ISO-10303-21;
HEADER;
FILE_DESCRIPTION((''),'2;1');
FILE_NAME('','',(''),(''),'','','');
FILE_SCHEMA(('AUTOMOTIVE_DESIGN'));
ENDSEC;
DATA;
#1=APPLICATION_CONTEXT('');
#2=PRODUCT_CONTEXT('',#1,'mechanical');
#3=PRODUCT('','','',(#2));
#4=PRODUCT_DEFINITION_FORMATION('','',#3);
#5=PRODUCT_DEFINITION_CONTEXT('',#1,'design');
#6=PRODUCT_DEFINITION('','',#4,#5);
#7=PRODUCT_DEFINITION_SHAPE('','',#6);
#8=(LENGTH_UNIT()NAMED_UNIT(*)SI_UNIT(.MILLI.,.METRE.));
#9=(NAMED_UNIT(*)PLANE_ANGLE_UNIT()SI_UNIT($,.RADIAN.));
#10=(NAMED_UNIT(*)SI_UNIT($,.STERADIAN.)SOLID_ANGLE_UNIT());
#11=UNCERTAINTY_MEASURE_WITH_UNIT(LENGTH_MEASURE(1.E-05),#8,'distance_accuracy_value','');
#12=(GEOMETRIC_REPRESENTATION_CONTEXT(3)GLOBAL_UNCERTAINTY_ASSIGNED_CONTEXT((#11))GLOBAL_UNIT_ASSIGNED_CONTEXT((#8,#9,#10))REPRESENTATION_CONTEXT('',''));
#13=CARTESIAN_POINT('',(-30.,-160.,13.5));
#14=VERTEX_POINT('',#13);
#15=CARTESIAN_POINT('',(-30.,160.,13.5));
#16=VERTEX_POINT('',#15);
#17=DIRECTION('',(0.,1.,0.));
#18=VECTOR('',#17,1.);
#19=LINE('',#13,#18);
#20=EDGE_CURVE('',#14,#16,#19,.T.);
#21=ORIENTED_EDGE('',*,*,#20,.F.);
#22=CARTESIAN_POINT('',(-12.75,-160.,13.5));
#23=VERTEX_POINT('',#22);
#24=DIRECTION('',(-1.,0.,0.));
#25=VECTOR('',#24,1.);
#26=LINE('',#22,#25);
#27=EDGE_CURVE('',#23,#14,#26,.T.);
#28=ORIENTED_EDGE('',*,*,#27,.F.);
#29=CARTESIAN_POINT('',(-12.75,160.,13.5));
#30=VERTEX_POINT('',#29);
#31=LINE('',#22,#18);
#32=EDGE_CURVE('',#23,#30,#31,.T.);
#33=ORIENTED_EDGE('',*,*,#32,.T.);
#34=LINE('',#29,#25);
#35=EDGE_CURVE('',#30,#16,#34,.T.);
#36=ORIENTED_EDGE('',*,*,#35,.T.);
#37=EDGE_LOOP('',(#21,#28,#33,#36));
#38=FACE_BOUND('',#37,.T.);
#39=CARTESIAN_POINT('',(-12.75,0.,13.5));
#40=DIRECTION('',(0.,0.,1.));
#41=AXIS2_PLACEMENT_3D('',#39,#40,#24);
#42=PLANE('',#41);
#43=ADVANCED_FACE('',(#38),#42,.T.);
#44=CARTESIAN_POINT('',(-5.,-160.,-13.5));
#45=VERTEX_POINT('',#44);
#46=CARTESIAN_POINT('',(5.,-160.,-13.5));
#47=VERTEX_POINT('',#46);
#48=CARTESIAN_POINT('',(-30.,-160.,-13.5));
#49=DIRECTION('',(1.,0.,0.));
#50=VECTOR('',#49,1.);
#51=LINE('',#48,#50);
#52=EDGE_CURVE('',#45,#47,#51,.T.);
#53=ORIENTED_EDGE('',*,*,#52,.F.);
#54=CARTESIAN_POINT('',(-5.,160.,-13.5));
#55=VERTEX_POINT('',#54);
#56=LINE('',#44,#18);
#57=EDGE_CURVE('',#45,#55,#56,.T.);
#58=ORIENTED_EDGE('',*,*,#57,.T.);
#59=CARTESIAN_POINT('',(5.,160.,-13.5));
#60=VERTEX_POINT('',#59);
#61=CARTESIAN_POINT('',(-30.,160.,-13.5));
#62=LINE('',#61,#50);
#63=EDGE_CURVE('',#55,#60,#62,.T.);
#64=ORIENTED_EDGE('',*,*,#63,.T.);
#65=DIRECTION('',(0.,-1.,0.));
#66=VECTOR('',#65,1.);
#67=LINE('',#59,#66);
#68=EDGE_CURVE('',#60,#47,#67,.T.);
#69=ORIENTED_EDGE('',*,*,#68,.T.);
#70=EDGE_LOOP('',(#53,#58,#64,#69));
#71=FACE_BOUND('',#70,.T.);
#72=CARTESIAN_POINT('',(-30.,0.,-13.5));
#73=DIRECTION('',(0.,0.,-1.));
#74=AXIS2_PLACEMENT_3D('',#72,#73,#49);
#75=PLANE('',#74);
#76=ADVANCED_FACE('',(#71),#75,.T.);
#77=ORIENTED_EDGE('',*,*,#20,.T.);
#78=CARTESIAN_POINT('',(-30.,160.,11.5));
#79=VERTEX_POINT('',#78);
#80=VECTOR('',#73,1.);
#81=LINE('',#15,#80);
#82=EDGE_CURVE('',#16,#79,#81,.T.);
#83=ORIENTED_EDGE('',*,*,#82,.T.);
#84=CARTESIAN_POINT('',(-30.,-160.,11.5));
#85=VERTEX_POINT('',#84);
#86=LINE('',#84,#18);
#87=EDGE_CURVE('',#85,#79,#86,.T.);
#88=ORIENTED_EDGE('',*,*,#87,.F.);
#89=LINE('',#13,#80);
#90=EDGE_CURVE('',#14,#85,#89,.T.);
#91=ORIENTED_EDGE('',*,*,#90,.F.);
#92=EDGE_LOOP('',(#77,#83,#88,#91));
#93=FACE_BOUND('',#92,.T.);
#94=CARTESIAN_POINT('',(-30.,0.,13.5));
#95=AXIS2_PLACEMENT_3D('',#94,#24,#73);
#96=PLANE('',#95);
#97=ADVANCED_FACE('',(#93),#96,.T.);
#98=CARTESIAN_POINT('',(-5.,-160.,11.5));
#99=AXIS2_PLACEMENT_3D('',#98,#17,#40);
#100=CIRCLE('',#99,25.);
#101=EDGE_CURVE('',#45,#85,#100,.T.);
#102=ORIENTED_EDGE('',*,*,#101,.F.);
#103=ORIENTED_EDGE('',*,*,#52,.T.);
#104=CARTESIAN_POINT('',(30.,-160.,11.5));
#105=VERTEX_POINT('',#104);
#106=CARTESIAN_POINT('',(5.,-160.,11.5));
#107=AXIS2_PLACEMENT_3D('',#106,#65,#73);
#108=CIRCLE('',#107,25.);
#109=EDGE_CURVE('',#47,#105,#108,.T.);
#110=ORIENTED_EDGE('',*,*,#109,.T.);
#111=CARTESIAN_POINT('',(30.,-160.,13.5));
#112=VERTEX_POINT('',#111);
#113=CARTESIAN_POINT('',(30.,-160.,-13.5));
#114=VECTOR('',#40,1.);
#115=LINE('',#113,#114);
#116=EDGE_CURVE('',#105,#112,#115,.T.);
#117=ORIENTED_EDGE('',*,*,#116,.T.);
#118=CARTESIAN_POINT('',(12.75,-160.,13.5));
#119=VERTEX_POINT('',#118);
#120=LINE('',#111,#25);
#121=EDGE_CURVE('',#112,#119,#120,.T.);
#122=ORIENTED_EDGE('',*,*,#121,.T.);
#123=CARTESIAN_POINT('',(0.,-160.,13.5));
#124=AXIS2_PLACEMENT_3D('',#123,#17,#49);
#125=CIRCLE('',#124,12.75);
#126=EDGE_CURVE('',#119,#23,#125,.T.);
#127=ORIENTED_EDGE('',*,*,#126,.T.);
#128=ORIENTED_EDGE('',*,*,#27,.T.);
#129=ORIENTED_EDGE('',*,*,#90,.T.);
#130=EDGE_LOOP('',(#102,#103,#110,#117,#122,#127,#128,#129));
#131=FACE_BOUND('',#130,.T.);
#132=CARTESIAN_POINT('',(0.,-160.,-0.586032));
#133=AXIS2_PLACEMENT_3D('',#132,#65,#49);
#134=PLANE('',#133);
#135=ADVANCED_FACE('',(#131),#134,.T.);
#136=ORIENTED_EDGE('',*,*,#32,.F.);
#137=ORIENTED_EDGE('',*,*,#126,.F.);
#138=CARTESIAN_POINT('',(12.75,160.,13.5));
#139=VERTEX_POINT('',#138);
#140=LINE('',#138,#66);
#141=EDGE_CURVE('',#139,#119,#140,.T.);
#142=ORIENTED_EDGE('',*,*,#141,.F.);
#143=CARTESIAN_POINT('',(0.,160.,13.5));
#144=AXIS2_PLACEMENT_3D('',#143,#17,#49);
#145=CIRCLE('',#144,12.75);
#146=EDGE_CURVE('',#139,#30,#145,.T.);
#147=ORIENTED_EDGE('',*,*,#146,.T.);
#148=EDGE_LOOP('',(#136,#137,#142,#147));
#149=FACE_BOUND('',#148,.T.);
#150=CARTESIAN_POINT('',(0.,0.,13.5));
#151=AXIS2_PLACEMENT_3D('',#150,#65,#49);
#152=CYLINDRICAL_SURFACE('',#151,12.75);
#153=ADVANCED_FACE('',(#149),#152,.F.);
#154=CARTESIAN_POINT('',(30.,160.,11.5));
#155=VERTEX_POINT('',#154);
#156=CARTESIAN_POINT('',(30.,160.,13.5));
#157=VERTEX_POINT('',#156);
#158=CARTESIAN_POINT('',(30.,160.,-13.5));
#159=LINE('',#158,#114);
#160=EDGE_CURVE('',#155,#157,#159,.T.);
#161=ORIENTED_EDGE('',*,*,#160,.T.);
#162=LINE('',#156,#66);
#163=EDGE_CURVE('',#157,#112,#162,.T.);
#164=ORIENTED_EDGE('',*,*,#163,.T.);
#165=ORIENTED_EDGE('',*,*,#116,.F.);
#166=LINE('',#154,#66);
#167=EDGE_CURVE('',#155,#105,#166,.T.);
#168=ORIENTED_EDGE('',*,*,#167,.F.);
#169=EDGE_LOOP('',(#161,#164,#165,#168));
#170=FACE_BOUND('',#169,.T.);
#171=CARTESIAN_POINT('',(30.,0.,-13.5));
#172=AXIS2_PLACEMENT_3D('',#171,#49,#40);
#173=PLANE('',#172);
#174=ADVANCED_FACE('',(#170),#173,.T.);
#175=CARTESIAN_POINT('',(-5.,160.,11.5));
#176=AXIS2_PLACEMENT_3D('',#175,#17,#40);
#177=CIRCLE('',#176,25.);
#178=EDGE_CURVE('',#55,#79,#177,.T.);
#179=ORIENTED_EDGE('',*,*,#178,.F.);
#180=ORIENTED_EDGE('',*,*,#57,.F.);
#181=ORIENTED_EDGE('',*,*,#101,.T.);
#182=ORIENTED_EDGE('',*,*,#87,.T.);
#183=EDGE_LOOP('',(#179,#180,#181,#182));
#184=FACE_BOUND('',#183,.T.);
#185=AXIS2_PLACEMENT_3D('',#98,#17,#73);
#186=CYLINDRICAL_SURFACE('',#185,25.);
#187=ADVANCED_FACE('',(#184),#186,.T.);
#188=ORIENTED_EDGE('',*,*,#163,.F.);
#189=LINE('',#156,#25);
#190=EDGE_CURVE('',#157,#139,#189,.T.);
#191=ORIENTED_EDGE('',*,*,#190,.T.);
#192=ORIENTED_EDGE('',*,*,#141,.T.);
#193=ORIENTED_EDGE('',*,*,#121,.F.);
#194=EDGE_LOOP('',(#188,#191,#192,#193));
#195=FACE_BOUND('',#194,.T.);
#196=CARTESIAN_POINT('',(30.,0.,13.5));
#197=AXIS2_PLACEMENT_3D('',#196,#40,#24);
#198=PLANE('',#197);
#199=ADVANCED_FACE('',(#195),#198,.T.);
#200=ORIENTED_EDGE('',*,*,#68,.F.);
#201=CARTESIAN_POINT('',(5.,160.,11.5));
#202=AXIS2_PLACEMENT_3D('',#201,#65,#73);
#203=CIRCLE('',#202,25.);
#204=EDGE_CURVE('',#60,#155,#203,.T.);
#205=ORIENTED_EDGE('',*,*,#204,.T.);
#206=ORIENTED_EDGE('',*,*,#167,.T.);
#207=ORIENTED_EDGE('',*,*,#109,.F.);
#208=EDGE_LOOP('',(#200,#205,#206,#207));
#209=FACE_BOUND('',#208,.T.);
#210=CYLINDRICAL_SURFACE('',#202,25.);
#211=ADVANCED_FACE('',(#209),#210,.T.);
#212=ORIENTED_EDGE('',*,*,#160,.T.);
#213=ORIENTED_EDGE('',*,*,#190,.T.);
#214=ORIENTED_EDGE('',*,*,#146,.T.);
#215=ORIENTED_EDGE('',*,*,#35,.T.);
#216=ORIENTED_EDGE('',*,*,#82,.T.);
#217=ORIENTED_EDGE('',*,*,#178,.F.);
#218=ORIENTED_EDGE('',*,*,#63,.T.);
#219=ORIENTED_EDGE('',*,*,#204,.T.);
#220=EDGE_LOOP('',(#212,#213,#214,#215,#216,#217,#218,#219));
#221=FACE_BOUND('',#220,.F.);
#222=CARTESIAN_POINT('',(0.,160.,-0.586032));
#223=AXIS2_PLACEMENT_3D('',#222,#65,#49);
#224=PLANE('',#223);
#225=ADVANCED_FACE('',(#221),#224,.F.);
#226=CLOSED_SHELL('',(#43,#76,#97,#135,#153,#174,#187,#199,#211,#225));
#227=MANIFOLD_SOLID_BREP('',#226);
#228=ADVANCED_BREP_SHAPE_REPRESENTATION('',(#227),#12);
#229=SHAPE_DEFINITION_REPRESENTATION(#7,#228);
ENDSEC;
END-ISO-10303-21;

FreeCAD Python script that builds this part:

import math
import FreeCAD as App
import Part
import Sketcher
from FreeCAD import Vector
Q = App.Units.Quantity


def edges_at(feature, points):
    """Names of the edges that pass closest to the given points."""
    edges = feature.Shape.Edges
    near = lambda p: min(range(len(edges)), key=lambda i: edges[i].distToShape(Part.Vertex(*p))[0])
    return sorted({f"Edge{near(p) + 1}" for p in points})

doc = App.newDocument("Part")
params = doc.addObject("Spreadsheet::Sheet", "Params")
for row, (alias, value) in enumerate([
    ("sketch1_width", "60 mm"),
    ("sketch1_height", "27 mm"),
    ("sketch1_radius", "12.75 mm"),
    ("pad1_length", "320 mm"),
    ("fillet_radius", "25 mm"),
], start=1):
    params.set(f"A{row}", alias)
    params.set(f"B{row}", "=" + value)
    params.setAlias(f"B{row}", alias)

body = doc.addObject("PartDesign::Body", "Body")

# Sketch on XZ plane
sketch1 = body.newObject("Sketcher::SketchObject", "Sketch")
sketch1.AttachmentSupport = (doc.getObject("XZ_Plane"), [""])
sketch1.MapMode = "FlatFace"
sketch1.addGeometry([
    Part.LineSegment(Vector(-30, -13.5, 0), Vector(30, -13.5, 0)),  # 0
    Part.LineSegment(Vector(30, -13.5, 0), Vector(30, 13.5, 0)),  # 1
    Part.LineSegment(Vector(30, 13.5, 0), Vector(12.75, 13.5, 0)),  # 2
    Part.ArcOfCircle(Part.Circle(Vector(0, 13.5, 0), Vector(0, 0, 1), 12.75), math.radians(180), math.radians(360)),  # 3
    Part.LineSegment(Vector(-12.75, 13.5, 0), Vector(-30, 13.5, 0)),  # 4
    Part.LineSegment(Vector(-30, 13.5, 0), Vector(-30, -13.5, 0)),  # 5
], False)
sketch1.addConstraint([
    Sketcher.Constraint("Coincident", 0, 2, 1, 1),
    Sketcher.Constraint("Coincident", 1, 2, 2, 1),
    Sketcher.Constraint("Coincident", 2, 2, 3, 2),
    Sketcher.Constraint("Coincident", 3, 1, 4, 1),
    Sketcher.Constraint("Coincident", 4, 2, 5, 1),
    Sketcher.Constraint("Coincident", 5, 2, 0, 1),
    Sketcher.Constraint("Horizontal", 0),
    Sketcher.Constraint("Vertical", 1),
    Sketcher.Constraint("Horizontal", 2),
    Sketcher.Constraint("Horizontal", 4),
    Sketcher.Constraint("Vertical", 5),
    Sketcher.Constraint("Symmetric", 0, 2, 4, 2, -1, 1),
    Sketcher.Constraint("Symmetric", 2, 2, 3, 1, -2),
    Sketcher.Constraint("Horizontal", 3, 3, 1, 2),
    Sketcher.Constraint("DistanceX", 0, 1, 0, 2, Q("60 mm")),
    Sketcher.Constraint("DistanceY", 1, 1, 1, 2, Q("27 mm")),
    Sketcher.Constraint("Radius", 3, Q("12.75 mm")),
])
sketch1.setExpression("Constraints[14]", "Params.sketch1_width")
sketch1.setExpression("Constraints[15]", "Params.sketch1_height")
sketch1.setExpression("Constraints[16]", "Params.sketch1_radius")
pad1 = body.newObject("PartDesign::Pad", "Pad")
pad1.Profile = sketch1
pad1.setExpression("Length", "Params.pad1_length")
pad1.Midplane = True
doc.recompute()

fillet = body.newObject("PartDesign::Fillet", "Fillet")
fillet.Base = (pad1, edges_at(pad1, [(30, 0, -13.5), (-30, 0, -13.5)]))
fillet.setExpression("Radius", "Params.fillet_radius")

doc.recompute()
